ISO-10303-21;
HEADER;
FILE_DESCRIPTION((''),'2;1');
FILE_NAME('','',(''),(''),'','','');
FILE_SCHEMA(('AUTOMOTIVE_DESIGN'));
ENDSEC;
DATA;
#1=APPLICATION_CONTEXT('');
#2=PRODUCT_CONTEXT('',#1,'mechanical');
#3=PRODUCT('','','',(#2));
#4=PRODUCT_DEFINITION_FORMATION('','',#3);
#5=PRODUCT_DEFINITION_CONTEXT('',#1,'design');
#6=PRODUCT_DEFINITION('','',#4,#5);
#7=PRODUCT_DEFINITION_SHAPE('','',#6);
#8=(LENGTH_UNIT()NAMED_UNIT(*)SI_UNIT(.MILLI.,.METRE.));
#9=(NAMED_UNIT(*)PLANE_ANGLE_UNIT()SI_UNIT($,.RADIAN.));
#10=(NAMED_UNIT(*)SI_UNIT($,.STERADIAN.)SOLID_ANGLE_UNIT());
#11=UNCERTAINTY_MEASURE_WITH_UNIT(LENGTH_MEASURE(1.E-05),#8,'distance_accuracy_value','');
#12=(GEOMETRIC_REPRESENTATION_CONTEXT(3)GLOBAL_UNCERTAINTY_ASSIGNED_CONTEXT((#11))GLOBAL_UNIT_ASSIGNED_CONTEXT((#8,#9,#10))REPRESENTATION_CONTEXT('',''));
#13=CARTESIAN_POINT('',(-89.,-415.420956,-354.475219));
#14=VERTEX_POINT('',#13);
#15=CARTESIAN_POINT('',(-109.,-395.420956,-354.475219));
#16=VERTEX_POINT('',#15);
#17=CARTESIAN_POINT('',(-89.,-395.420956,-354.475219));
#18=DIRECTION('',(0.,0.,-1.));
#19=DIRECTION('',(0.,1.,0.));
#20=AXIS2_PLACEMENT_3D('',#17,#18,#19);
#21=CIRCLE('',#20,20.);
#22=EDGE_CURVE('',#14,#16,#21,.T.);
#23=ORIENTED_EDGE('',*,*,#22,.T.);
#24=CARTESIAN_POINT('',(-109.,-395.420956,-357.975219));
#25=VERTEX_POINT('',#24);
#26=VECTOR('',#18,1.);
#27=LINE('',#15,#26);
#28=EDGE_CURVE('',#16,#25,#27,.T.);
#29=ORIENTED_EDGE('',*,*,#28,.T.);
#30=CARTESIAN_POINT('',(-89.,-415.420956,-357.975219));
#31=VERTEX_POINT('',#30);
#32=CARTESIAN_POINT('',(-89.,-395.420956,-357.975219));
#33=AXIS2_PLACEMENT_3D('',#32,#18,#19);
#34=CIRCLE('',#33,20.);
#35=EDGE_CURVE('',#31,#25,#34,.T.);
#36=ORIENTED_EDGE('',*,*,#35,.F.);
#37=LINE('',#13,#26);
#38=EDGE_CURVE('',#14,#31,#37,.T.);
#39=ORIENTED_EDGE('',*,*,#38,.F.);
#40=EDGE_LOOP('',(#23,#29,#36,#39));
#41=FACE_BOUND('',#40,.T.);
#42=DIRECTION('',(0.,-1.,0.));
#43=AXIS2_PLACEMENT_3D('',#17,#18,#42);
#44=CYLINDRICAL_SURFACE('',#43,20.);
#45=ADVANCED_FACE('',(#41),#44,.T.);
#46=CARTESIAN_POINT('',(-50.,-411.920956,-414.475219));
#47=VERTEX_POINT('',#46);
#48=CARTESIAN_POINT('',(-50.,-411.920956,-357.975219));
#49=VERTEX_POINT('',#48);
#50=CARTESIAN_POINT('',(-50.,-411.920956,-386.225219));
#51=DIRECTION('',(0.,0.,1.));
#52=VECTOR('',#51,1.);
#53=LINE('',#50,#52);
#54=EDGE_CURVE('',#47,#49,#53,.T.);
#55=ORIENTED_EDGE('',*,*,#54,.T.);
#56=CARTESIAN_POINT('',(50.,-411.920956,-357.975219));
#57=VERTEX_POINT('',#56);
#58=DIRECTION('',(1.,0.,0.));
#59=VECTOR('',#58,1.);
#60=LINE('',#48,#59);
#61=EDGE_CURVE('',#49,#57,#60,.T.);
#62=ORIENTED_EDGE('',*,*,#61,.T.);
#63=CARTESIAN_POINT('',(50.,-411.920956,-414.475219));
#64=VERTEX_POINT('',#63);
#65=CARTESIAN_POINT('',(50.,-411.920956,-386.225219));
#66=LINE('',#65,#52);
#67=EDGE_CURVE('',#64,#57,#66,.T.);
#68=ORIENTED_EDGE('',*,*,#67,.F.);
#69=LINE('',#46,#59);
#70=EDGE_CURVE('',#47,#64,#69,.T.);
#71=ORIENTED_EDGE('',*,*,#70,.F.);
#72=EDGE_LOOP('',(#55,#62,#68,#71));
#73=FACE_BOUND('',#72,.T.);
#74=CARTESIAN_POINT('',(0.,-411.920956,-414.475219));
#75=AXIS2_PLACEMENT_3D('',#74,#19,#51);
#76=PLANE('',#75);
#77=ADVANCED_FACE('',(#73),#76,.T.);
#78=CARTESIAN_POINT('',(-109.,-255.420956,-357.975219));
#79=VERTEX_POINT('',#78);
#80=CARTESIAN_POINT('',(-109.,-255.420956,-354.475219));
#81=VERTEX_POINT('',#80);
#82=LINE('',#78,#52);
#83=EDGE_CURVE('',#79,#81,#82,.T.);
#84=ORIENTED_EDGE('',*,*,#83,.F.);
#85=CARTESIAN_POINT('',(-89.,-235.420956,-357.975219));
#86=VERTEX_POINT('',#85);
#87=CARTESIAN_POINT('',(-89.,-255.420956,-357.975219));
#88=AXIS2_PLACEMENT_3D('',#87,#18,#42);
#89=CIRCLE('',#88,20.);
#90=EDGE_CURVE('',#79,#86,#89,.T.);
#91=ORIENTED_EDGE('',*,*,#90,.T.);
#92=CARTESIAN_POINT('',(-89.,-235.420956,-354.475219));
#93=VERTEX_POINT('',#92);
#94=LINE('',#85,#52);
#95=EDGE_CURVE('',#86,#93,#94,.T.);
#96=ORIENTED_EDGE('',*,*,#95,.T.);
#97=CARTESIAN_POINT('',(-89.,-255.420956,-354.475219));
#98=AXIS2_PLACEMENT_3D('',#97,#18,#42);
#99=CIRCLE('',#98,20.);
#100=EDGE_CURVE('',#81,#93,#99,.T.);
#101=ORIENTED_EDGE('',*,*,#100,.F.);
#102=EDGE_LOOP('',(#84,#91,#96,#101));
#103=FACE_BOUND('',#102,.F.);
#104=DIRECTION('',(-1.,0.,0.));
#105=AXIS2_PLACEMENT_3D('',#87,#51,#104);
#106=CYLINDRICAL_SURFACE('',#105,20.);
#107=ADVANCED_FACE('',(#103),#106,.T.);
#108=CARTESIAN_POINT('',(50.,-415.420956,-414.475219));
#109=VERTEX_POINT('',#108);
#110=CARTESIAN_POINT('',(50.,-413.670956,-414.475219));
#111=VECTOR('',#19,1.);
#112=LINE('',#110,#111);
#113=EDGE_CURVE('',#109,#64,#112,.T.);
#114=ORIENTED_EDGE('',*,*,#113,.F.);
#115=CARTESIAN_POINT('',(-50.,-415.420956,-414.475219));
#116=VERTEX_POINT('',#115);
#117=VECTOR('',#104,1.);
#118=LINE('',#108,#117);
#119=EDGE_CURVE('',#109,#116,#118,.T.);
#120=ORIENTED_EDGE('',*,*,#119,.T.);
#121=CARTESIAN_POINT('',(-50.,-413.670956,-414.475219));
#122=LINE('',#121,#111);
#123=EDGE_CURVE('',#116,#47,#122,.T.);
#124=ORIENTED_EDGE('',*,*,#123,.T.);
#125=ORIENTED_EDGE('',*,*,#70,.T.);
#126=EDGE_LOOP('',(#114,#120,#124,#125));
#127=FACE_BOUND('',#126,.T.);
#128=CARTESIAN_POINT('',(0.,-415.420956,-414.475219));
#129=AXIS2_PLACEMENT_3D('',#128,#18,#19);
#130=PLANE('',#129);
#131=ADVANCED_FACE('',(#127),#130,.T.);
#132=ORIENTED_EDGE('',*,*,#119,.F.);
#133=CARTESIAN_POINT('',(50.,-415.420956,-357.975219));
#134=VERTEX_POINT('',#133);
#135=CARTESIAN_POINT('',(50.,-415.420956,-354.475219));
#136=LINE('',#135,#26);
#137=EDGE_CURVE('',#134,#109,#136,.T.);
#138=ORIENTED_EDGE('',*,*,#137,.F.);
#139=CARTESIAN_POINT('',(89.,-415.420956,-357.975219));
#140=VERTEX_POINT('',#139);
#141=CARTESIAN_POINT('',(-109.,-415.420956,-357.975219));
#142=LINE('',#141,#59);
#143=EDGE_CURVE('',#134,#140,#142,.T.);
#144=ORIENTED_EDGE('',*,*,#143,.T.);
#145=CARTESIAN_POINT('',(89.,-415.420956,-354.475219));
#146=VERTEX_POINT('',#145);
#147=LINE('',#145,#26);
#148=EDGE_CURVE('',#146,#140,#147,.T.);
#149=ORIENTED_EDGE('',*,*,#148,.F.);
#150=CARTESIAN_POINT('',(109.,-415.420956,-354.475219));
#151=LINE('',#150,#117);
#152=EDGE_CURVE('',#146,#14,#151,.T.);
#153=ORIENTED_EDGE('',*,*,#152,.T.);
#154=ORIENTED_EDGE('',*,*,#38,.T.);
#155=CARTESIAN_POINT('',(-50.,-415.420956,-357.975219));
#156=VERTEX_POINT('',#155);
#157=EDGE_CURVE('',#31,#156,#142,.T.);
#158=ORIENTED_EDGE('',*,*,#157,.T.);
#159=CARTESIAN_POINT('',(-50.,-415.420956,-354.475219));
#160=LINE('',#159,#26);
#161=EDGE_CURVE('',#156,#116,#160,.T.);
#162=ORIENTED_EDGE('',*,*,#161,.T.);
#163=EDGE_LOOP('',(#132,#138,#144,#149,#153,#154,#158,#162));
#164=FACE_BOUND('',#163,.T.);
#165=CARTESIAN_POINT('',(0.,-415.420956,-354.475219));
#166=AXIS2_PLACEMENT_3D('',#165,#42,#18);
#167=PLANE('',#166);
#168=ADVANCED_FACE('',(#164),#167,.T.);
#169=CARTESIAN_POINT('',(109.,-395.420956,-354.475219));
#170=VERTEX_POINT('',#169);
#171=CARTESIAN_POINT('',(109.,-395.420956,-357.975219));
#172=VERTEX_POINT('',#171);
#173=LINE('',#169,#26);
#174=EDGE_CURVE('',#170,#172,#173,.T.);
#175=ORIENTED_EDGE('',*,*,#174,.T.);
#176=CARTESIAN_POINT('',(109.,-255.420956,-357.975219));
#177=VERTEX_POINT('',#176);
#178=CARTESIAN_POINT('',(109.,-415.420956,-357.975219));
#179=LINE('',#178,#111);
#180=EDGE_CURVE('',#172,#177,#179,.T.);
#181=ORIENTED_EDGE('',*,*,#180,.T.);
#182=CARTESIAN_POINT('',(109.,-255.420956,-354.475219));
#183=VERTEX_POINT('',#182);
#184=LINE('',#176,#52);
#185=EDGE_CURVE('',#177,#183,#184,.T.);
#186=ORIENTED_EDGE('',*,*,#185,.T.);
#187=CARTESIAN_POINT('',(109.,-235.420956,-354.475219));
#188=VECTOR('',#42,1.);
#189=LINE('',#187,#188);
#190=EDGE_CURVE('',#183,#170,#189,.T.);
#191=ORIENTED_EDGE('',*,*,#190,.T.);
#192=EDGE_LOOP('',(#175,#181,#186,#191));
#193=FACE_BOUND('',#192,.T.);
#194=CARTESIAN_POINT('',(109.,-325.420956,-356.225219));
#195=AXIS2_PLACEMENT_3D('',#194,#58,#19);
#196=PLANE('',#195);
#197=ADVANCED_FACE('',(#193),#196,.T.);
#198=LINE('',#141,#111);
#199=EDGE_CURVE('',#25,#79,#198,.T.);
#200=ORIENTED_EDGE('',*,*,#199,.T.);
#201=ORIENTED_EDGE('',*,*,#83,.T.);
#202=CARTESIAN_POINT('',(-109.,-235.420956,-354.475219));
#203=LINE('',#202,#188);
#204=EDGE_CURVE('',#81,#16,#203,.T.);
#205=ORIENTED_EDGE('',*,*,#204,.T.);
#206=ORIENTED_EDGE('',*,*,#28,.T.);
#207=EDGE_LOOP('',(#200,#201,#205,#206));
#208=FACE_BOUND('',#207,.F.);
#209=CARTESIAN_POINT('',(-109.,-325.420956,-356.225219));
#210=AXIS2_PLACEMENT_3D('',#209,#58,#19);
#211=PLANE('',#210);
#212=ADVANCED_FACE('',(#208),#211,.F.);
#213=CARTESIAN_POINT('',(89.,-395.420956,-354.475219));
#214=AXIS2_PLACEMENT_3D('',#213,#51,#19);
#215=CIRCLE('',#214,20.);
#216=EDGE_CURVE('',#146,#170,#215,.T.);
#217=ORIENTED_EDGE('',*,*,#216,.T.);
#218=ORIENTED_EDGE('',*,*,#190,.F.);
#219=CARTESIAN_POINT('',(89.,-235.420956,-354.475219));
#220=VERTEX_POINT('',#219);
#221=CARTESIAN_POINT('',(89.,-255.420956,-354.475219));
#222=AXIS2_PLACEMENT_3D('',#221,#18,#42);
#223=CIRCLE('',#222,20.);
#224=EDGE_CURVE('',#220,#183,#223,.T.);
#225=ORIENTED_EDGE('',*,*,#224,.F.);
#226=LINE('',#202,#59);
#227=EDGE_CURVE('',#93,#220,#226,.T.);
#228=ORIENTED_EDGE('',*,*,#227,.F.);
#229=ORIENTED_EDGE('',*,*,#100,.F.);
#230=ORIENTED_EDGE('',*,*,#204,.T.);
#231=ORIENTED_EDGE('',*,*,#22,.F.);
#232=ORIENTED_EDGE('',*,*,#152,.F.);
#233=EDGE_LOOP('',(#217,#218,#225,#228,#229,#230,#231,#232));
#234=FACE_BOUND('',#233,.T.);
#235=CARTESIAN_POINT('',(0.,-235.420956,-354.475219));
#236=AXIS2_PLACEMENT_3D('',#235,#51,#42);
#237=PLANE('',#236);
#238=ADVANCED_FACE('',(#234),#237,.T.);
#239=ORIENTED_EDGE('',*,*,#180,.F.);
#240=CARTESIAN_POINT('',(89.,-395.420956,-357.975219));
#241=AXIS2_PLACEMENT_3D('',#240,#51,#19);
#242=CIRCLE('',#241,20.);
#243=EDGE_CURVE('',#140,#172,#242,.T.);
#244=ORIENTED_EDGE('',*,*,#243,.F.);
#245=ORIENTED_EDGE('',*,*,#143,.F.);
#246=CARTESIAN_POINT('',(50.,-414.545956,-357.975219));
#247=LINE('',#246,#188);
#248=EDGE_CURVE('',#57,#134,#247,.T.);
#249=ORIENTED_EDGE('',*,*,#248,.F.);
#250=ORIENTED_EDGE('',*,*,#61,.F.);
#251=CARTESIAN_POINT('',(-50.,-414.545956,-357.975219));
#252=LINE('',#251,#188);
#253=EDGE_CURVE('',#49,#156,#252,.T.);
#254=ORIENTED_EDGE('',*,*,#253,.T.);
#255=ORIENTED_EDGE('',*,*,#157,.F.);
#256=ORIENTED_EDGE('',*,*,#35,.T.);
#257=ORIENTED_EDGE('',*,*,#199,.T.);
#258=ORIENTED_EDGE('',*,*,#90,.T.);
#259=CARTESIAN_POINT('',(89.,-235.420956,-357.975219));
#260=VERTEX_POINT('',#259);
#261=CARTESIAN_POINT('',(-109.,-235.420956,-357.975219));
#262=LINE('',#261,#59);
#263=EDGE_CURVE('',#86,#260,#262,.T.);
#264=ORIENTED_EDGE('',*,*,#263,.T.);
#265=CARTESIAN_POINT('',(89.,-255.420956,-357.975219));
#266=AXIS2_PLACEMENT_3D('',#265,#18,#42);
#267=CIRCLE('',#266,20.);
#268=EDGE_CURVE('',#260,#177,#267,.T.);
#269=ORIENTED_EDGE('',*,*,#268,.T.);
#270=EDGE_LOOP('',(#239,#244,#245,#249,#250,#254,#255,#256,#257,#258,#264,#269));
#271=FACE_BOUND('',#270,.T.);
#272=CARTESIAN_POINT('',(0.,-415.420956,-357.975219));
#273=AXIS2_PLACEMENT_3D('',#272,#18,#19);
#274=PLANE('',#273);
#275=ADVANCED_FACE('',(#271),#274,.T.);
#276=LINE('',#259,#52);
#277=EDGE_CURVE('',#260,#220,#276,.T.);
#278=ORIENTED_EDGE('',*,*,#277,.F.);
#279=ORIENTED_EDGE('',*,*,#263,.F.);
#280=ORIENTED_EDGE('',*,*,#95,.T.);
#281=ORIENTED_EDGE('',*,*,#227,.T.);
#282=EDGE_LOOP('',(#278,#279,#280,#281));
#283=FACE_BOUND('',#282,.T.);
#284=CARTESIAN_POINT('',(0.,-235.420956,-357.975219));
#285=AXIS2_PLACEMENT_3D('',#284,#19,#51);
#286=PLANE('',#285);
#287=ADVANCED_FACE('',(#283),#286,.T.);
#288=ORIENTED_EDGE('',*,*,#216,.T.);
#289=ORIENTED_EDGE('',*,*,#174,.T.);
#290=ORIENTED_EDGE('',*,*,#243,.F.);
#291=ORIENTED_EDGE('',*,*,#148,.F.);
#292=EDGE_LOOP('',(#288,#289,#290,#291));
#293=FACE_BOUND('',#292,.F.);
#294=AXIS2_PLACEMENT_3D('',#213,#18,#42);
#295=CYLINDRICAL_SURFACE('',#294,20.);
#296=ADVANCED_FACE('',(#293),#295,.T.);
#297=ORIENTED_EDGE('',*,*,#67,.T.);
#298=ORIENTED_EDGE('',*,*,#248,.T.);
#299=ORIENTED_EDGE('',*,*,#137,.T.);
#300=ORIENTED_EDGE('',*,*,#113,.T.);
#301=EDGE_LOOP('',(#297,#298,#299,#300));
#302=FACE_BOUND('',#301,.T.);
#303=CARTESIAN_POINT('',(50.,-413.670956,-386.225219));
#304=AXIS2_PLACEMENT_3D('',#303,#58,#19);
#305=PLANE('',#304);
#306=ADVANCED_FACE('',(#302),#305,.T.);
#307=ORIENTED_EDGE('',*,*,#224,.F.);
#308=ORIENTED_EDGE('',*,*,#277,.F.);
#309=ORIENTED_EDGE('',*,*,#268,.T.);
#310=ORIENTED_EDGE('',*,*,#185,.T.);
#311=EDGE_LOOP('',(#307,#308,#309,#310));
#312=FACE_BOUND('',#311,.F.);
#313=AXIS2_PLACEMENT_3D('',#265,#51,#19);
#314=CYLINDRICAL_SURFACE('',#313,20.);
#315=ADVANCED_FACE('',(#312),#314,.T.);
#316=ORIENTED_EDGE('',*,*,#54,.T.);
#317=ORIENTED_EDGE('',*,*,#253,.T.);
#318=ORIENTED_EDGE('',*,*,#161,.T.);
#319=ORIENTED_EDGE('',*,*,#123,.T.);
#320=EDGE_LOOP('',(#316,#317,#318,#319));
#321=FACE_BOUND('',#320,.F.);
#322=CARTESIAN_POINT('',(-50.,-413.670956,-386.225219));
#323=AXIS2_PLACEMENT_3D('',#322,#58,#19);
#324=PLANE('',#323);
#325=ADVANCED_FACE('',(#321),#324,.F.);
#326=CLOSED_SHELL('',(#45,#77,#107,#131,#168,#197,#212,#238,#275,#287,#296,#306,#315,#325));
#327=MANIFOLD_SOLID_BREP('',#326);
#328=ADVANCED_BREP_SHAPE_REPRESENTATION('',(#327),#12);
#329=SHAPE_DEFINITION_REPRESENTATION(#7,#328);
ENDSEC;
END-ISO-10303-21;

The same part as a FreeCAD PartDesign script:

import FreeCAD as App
import Part
import Sketcher

V = App.Vector
Q = App.Units.Quantity


def edges_at(feature, points):
    """Names of the edges that pass closest to the given points."""
    edges = feature.Shape.Edges
    near = lambda p: min(range(len(edges)), key=lambda i: edges[i].distToShape(Part.Vertex(*p))[0])
    return sorted({f"Edge{near(p) + 1}" for p in points})

doc = App.newDocument("Part")
body = doc.addObject("PartDesign::Body", "Body")

# Sketch on YZ plane
sketch1 = doc.addObject("Sketcher::SketchObject", "Sketch")
body.addObject(sketch1)
sketch1.AttachmentSupport = (doc.YZ_Plane, [""])
sketch1.MapMode = "FlatFace"
sketch1.addGeometry([
    Part.LineSegment(V(-415.4, -354.5, 0), V(-415.4, -358, 0)),
    Part.LineSegment(V(-415.4, -358, 0), V(-235.4, -358, 0)),
    Part.LineSegment(V(-235.4, -358, 0), V(-235.4, -354.5, 0)),
    Part.LineSegment(V(-235.4, -354.5, 0), V(-415.4, -354.5, 0)),
], False)
sketch1.addConstraint([
    Sketcher.Constraint("Coincident", 0, 2, 1, 1),
    Sketcher.Constraint("Coincident", 1, 2, 2, 1),
    Sketcher.Constraint("Coincident", 2, 2, 3, 1),
    Sketcher.Constraint("Coincident", 3, 2, 0, 1),
    Sketcher.Constraint("Vertical", 0),
    Sketcher.Constraint("Horizontal", 1),
    Sketcher.Constraint("Vertical", 2),
    Sketcher.Constraint("Horizontal", 3),
    Sketcher.Constraint("DistanceX", 1, 1, 1, 2, Q("180 mm")),
    Sketcher.Constraint("DistanceY", 0, 2, 0, 1, Q("3.5 mm")),
    Sketcher.Constraint("DistanceY", 0, 2, -1, 1, Q("357.975219 mm")),
    Sketcher.Constraint("DistanceX", 0, 2, -1, 1, Q("415.420956 mm")),
])
pad1 = doc.addObject("PartDesign::Pad", "Pad")
body.addObject(pad1)
pad1.Profile = sketch1
pad1.Length = 218
pad1.Midplane = True

# Sketch on YZ plane
sketch2 = doc.addObject("Sketcher::SketchObject", "Sketch001")
body.addObject(sketch2)
sketch2.AttachmentSupport = (doc.YZ_Plane, [""])
sketch2.MapMode = "FlatFace"
sketch2.addGeometry([
    Part.LineSegment(V(-415.4, -414.5, 0), V(-411.9, -414.5, 0)),  # 0
    Part.LineSegment(V(-411.9, -414.5, 0), V(-411.9, -358, 0)),  # 1
    Part.LineSegment(V(-411.9, -358, 0), V(-235.4, -358, 0)),  # 2
    Part.LineSegment(V(-235.4, -358, 0), V(-235.4, -354.5, 0)),  # 3
    Part.LineSegment(V(-235.4, -354.5, 0), V(-415.4, -354.5, 0)),  # 4
    Part.LineSegment(V(-415.4, -354.5, 0), V(-415.4, -414.5, 0)),  # 5
], False)
sketch2.addConstraint([
    Sketcher.Constraint("Coincident", 0, 2, 1, 1),
    Sketcher.Constraint("Coincident", 1, 2, 2, 1),
    Sketcher.Constraint("Coincident", 2, 2, 3, 1),
    Sketcher.Constraint("Coincident", 3, 2, 4, 1),
    Sketcher.Constraint("Coincident", 4, 2, 5, 1),
    Sketcher.Constraint("Coincident", 5, 2, 0, 1),
    Sketcher.Constraint("Horizontal", 0),
    Sketcher.Constraint("Vertical", 1),
    Sketcher.Constraint("Horizontal", 2),
    Sketcher.Constraint("Vertical", 3),
    Sketcher.Constraint("Horizontal", 4),
    Sketcher.Constraint("Vertical", 5),
    Sketcher.Constraint("Equal", 0, 3),
    Sketcher.Constraint("DistanceX", 4, 2, 4, 1, Q("180 mm")),
    Sketcher.Constraint("DistanceY", 5, 2, 5, 1, Q("60 mm")),
    Sketcher.Constraint("DistanceX", 0, 1, 0, 2, Q("3.5 mm")),
    Sketcher.Constraint("DistanceY", 0, 2, -1, 1, Q("414.475219 mm")),
    Sketcher.Constraint("DistanceX", 0, 2, -1, 1, Q("411.920956 mm")),
])
pad2 = doc.addObject("PartDesign::Pad", "Pad001")
body.addObject(pad2)
pad2.Profile = sketch2
pad2.Length = 100
pad2.Midplane = True
doc.recompute()

fillet = doc.addObject("PartDesign::Fillet", "Fillet")
body.addObject(fillet)
fillet.Base = (pad2, edges_at(pad2, [
    (109, -235.421, -356.225),
    (-109, -235.421, -356.225),
    (-109, -415.421, -356.225),
    (109, -415.421, -356.225),
]))
fillet.Radius = 20

doc.recompute()
